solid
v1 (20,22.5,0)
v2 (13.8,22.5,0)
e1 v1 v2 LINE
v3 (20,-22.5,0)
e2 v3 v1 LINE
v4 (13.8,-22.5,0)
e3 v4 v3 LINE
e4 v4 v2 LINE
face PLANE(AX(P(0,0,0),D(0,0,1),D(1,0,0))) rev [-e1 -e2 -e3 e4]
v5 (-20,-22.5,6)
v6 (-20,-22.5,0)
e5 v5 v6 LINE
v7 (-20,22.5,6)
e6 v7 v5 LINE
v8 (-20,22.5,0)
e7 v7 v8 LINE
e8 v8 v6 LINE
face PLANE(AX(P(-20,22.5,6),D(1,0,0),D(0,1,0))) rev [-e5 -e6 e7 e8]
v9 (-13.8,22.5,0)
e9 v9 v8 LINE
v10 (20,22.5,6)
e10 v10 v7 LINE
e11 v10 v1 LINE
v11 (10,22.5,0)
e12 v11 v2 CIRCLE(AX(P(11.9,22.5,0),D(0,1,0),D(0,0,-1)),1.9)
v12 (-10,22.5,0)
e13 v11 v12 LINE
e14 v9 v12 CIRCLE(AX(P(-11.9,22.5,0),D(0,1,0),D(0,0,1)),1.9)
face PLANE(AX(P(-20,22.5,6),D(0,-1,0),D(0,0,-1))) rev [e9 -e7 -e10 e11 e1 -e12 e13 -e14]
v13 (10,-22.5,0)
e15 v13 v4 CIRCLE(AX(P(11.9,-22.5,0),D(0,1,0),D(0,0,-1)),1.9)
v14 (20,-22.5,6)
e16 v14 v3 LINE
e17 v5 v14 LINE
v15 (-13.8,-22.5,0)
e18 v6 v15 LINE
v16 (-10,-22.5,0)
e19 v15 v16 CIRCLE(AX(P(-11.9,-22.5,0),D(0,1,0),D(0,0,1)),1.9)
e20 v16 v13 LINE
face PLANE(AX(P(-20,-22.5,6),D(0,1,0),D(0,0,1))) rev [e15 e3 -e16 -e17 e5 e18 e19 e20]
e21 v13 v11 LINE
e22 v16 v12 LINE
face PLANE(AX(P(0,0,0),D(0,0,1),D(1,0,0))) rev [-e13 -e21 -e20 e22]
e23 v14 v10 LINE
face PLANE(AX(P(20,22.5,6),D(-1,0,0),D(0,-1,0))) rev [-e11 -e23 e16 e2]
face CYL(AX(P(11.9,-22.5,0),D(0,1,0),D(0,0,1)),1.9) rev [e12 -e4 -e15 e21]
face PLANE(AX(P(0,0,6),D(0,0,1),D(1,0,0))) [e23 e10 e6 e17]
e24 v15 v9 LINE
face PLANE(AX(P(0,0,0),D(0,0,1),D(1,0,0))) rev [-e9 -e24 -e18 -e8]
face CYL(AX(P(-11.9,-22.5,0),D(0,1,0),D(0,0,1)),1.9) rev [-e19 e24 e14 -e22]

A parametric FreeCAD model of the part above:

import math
import FreeCAD as App
import Part
import Sketcher
from FreeCAD import Vector

doc = App.newDocument("Part")
body = doc.addObject("PartDesign::Body", "Body")

# Sketch on XY plane
sketch1 = body.newObject("Sketcher::SketchObject", "Sketch")
sketch1.AttachmentSupport = (doc.getObject("XY_Plane"), [""])
sketch1.MapMode = "FlatFace"
sketch1.addGeometry(Part.LineSegment(Vector(-20, 22.5, 0), Vector(-20, -22.5, 0)), False)
sketch1.addGeometry(Part.LineSegment(Vector(-20, -22.5, 0), Vector(20, -22.5, 0)), False)
sketch1.addGeometry(Part.LineSegment(Vector(20, -22.5, 0), Vector(20, 22.5, 0)), False)
sketch1.addGeometry(Part.LineSegment(Vector(20, 22.5, 0), Vector(-20, 22.5, 0)), False)
sketch1.addConstraint(Sketcher.Constraint("Coincident", 0, 2, 1, 1))
sketch1.addConstraint(Sketcher.Constraint("Coincident", 1, 2, 2, 1))
sketch1.addConstraint(Sketcher.Constraint("Coincident", 2, 2, 3, 1))
sketch1.addConstraint(Sketcher.Constraint("Coincident", 3, 2, 0, 1))
sketch1.addConstraint(Sketcher.Constraint("Vertical", 0))
sketch1.addConstraint(Sketcher.Constraint("Horizontal", 1))
sketch1.addConstraint(Sketcher.Constraint("Vertical", 2))
sketch1.addConstraint(Sketcher.Constraint("Horizontal", 3))
sketch1.addConstraint(Sketcher.Constraint("Symmetric", 0, 2, 2, 2, -1, 1))
sketch1.addConstraint(Sketcher.Constraint("DistanceX", 1, 1, 1, 2, 40.0))
sketch1.addConstraint(Sketcher.Constraint("DistanceY", 0, 2, 0, 1, 45.0))
pad1 = body.newObject("PartDesign::Pad", "Pad")
pad1.Profile = sketch1
pad1.Length = 6

# Sketch on XZ plane
sketch2 = body.newObject("Sketcher::SketchObject", "Sketch001")
sketch2.AttachmentSupport = (doc.getObject("XZ_Plane"), [""])
sketch2.MapMode = "FlatFace"
sketch2.AttachmentOffset = App.Placement(Vector(0, 0, -22.5), App.Rotation())
sketch2.addGeometry(Part.LineSegment(Vector(-10, 0, 0), Vector(-13.8, 0, 0)), False)
sketch2.addGeometry(Part.ArcOfCircle(Part.Circle(Vector(-11.9, 0, 0), Vector(0, 0, 1), 1.9), math.radians(0), math.radians(180)), False)
sketch2.addGeometry(Part.LineSegment(Vector(13.8, 0, 0), Vector(10, 0, 0)), False)
sketch2.addGeometry(Part.ArcOfCircle(Part.Circle(Vector(11.9, 0, 0), Vector(0, 0, 1), 1.9), math.radians(0), math.radians(180)), False)
sketch2.addConstraint(Sketcher.Constraint("Coincident", 0, 1, 1, 1))
sketch2.addConstraint(Sketcher.Constraint("Coincident", 1, 2, 0, 2))
sketch2.addConstraint(Sketcher.Constraint("Coincident", 2, 1, 3, 1))
sketch2.addConstraint(Sketcher.Constraint("Coincident", 3, 2, 2, 2))
sketch2.addConstraint(Sketcher.Constraint("Horizontal", 0))
sketch2.addConstraint(Sketcher.Constraint("Horizontal", 2))
sketch2.addConstraint(Sketcher.Constraint("Equal", 1, 3))
sketch2.addConstraint(Sketcher.Constraint("Symmetric", 1, 3, 3, 3, -1, 1))
sketch2.addConstraint(Sketcher.Constraint("PointOnObject", 1, 3, -1))
sketch2.addConstraint(Sketcher.Constraint("PointOnObject", 0, 1, -1))
sketch2.addConstraint(Sketcher.Constraint("PointOnObject", 2, 1, -1))
sketch2.addConstraint(Sketcher.Constraint("Radius", 1, 1.9))
sketch2.addConstraint(Sketcher.Constraint("DistanceX", 0, 1, -1, 1, 10.0))
pocket1 = body.newObject("PartDesign::Pocket", "Pocket")
pocket1.Profile = sketch2
pocket1.Type = "ThroughAll"
pocket1.Reversed = True

doc.recompute()
